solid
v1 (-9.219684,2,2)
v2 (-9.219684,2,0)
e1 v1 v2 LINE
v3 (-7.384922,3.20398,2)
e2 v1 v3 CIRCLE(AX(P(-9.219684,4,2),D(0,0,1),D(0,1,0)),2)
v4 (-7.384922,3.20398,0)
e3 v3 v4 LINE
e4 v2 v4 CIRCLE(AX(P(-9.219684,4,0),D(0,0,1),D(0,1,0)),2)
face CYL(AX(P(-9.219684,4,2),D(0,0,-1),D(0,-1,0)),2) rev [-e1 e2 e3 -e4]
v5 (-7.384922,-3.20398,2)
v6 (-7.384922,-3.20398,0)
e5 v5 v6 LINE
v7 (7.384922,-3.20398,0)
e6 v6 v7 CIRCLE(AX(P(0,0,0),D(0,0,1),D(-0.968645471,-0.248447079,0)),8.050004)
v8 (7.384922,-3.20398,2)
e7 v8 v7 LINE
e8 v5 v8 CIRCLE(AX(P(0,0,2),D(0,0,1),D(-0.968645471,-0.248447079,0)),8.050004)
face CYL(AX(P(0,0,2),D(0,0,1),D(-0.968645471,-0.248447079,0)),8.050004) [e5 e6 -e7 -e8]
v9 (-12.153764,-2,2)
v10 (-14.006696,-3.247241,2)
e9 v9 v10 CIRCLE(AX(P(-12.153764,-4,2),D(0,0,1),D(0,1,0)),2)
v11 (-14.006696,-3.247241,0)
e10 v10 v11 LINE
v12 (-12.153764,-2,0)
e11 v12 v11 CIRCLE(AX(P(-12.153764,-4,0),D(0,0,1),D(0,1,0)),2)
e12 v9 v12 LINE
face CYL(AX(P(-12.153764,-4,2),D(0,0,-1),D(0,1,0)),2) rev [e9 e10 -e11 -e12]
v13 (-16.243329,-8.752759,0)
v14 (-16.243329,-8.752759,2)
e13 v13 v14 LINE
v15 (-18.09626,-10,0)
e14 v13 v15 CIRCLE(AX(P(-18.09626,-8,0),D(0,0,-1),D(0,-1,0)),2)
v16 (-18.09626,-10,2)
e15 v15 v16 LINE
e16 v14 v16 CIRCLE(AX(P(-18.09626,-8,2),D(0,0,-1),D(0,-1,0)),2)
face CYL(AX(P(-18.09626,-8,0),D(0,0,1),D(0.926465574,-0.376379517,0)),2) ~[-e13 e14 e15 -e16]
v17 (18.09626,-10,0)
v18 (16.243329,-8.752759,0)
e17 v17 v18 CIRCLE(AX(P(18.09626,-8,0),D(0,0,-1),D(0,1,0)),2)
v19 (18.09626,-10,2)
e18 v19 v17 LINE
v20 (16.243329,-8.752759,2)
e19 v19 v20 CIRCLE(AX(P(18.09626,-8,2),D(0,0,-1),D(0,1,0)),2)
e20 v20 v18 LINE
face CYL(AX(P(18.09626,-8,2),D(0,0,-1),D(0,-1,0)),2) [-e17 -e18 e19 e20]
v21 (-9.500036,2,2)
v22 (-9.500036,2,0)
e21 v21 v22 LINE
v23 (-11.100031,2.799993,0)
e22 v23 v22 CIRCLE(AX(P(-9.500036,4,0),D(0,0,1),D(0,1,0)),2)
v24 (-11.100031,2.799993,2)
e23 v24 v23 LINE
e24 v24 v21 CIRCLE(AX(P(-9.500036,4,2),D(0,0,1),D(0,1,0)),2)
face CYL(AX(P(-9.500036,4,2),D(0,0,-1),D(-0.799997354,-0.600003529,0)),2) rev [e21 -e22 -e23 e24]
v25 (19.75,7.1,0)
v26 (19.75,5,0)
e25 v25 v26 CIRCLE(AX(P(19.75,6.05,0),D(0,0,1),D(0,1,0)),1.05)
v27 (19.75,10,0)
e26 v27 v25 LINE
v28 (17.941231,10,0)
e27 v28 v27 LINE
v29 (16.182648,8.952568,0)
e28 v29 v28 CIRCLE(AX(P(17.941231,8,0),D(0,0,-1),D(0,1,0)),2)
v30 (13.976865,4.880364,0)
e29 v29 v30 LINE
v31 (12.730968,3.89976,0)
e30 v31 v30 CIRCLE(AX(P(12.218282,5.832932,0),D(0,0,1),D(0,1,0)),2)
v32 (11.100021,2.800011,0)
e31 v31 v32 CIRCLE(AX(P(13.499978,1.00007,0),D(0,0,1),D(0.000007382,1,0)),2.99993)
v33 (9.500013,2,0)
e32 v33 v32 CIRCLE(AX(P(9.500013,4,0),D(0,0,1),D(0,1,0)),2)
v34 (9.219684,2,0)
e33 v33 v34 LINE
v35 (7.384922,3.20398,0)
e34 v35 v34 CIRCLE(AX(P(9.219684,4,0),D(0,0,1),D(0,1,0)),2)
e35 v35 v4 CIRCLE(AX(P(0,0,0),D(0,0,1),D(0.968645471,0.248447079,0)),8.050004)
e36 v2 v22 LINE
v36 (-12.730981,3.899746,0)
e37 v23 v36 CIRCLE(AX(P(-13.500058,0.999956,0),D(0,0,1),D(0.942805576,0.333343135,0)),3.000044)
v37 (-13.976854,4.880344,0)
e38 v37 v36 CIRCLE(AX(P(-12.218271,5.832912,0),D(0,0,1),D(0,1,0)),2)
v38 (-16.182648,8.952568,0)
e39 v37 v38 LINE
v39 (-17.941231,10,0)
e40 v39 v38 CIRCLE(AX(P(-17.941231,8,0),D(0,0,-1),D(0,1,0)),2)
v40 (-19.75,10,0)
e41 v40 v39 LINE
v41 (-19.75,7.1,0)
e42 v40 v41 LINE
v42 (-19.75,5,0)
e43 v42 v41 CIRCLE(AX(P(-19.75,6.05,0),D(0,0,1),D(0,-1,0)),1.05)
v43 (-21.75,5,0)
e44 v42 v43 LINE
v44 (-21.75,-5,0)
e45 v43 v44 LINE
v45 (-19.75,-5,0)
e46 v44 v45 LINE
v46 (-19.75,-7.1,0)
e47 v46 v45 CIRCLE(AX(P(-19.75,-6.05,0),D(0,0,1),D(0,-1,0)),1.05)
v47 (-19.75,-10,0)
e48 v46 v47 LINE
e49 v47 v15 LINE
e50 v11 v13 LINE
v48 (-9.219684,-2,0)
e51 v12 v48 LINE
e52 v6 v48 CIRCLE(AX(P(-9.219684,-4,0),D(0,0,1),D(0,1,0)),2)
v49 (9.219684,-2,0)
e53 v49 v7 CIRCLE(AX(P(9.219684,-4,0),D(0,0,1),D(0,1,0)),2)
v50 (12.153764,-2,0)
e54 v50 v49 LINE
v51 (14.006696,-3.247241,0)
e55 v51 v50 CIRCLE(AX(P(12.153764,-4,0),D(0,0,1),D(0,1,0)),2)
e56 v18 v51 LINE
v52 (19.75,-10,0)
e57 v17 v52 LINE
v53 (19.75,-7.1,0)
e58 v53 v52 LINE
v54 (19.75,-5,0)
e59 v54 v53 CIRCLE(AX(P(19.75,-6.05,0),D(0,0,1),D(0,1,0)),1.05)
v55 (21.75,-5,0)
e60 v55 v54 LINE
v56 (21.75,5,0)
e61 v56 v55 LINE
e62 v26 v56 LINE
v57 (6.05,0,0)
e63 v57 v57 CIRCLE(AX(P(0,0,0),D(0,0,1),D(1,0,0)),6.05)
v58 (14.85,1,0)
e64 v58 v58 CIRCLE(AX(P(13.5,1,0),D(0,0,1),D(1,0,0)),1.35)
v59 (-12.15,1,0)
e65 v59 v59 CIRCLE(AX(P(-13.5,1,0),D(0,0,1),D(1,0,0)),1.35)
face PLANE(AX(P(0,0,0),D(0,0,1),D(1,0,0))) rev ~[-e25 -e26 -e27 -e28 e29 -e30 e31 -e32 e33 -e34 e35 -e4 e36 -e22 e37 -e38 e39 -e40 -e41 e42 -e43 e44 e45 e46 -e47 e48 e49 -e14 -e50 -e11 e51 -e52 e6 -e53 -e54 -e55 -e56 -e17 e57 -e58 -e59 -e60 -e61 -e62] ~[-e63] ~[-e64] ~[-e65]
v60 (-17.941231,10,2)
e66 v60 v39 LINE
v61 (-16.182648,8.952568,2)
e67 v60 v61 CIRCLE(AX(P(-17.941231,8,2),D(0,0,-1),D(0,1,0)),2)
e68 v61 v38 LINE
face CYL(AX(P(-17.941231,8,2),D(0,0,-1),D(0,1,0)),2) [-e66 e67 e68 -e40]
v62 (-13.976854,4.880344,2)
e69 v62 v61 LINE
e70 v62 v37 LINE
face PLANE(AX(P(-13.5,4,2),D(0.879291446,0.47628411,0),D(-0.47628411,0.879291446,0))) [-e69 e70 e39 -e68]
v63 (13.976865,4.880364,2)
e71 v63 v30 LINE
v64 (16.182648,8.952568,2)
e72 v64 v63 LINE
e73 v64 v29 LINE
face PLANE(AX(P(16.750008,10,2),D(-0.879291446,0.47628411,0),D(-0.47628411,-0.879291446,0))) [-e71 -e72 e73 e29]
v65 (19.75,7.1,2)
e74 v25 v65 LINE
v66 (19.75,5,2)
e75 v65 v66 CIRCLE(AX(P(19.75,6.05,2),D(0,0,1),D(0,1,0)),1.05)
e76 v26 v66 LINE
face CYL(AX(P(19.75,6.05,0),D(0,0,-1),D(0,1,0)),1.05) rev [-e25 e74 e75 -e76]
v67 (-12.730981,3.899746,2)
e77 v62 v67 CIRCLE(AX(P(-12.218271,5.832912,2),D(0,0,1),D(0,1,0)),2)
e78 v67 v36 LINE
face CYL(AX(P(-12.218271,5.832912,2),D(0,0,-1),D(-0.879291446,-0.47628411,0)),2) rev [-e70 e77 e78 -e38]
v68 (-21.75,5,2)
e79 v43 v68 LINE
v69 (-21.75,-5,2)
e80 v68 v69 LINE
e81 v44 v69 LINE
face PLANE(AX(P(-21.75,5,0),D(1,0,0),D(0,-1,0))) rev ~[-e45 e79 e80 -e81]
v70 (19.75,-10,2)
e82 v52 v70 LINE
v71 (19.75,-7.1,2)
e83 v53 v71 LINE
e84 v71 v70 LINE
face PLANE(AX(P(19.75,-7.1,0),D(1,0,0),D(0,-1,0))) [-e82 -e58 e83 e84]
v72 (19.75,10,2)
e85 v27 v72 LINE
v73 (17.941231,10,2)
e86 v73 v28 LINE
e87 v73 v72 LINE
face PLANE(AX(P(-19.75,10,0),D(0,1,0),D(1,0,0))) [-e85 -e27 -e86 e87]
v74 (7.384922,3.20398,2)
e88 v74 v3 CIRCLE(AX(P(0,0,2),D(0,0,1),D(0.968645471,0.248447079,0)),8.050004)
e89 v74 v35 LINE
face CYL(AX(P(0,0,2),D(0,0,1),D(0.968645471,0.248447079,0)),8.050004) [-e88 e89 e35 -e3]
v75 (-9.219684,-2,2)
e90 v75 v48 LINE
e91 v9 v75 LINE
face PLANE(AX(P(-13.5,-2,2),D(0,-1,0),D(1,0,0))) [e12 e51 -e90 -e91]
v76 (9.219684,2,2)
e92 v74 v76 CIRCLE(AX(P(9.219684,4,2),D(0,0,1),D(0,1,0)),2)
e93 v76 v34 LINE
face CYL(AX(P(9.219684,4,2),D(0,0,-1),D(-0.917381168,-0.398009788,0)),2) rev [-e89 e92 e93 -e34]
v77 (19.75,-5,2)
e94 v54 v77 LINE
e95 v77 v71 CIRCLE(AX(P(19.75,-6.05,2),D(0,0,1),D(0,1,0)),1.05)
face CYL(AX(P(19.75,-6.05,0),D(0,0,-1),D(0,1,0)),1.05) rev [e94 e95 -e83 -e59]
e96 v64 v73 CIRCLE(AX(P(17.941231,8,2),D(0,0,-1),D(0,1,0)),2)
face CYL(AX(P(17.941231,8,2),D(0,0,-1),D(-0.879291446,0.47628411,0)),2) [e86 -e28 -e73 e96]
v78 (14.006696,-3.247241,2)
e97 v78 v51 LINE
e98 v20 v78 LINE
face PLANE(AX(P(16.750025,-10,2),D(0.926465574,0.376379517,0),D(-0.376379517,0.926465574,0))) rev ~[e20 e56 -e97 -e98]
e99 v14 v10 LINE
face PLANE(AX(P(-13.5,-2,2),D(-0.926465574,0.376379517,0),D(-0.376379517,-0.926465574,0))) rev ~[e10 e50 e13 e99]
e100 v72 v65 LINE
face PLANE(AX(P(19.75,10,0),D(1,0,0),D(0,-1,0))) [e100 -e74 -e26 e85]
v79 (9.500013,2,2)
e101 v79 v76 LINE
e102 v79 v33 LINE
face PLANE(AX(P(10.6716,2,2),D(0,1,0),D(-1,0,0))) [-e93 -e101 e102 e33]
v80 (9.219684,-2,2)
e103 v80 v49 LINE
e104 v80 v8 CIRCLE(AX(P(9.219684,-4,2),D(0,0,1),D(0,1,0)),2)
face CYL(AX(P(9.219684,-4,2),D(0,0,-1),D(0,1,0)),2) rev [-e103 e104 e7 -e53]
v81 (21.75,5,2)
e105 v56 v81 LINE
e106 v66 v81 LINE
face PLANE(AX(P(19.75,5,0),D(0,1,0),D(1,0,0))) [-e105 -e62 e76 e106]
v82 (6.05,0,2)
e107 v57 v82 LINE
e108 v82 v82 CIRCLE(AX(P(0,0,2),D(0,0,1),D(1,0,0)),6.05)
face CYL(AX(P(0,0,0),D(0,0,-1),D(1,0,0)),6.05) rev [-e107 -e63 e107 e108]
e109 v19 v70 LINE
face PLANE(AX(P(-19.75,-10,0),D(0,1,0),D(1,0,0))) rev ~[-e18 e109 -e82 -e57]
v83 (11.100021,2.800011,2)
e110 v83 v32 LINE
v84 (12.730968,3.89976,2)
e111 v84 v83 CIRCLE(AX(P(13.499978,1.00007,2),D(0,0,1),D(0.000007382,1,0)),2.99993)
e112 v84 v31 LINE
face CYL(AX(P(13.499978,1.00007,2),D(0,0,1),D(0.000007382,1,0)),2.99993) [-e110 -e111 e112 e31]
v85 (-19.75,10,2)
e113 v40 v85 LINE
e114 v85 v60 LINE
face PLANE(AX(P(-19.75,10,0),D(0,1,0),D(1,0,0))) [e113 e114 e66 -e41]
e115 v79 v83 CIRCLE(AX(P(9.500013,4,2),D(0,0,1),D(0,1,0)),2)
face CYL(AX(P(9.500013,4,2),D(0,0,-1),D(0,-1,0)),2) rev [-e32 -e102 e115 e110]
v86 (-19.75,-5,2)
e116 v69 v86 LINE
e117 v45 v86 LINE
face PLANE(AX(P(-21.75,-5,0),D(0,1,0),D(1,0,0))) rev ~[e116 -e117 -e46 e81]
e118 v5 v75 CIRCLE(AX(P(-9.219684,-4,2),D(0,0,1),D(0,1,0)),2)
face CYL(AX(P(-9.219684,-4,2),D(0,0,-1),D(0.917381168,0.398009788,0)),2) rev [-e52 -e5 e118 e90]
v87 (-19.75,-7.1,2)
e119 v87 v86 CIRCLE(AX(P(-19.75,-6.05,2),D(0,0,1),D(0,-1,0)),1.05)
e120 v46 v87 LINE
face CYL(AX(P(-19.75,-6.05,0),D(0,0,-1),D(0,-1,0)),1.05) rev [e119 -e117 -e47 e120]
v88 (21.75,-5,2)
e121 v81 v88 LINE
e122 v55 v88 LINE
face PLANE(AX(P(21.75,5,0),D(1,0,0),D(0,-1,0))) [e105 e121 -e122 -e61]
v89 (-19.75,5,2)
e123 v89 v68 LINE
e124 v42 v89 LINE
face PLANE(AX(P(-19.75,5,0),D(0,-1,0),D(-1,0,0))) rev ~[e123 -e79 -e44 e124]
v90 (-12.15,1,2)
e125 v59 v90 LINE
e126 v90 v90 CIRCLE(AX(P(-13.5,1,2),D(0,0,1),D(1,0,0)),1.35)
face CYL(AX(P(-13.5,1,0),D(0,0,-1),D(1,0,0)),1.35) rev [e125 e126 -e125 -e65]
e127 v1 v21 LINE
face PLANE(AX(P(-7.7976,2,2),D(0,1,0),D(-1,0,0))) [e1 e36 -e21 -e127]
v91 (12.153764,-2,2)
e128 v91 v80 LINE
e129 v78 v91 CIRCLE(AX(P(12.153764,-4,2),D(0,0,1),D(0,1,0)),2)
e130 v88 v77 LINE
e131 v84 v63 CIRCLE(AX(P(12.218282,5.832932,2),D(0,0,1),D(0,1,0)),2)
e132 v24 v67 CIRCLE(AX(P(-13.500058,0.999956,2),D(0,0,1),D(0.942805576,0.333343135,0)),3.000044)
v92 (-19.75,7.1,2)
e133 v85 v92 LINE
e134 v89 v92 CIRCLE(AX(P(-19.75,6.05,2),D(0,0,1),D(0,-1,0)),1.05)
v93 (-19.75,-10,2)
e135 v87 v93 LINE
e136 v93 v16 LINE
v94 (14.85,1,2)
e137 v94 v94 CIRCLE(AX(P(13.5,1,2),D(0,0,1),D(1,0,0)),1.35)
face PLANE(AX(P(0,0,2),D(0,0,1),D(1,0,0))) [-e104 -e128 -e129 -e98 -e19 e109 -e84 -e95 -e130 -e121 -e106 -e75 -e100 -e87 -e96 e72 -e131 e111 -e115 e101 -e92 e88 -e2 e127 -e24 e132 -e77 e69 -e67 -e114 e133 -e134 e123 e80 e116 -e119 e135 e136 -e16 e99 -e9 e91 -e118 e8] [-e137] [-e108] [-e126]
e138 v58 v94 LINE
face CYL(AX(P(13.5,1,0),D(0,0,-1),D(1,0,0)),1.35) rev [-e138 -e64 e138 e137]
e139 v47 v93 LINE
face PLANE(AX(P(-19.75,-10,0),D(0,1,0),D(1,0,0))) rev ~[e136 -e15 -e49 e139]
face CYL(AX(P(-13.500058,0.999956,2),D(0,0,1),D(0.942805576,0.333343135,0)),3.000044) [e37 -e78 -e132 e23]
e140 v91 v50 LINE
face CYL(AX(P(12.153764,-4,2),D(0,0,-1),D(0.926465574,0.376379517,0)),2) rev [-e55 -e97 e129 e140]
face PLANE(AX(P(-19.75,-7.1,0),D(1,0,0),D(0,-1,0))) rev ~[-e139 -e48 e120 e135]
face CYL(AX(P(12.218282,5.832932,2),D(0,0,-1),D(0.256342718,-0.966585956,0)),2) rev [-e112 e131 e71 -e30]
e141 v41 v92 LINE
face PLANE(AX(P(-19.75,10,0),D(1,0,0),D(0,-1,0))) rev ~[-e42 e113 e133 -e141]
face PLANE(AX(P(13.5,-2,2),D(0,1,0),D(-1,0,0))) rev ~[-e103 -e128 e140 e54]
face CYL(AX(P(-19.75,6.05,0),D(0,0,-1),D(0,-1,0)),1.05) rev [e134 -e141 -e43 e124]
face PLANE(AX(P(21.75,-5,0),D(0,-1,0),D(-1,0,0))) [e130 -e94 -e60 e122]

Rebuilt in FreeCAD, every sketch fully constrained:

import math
import FreeCAD as App
import Part
import Sketcher

V = App.Vector
Q = App.Units.Quantity


def edges_at(feature, points):
    """Names of the edges that pass closest to the given points."""
    edges = feature.Shape.Edges
    near = lambda p: min(range(len(edges)), key=lambda i: edges[i].distToShape(Part.Vertex(*p))[0])
    return sorted({f"Edge{near(p) + 1}" for p in points})

doc = App.newDocument("Part")
body = doc.addObject("PartDesign::Body", "Body")

sketch1 = body.newObject("Sketcher::SketchObject", "Sketch")
sketch1.AttachmentSupport = (doc.getObject("XY_Plane"), [""])
sketch1.MapMode = "FlatFace"
sketch1.addGeometry(Part.LineSegment(V(19.8, 10, 0), V(-19.8, 10, 0)), False)
sketch1.addGeometry(Part.LineSegment(V(-19.8, 10, 0), V(-19.8, 7.1, 0)), False)
sketch1.addGeometry(Part.ArcOfCircle(Part.Circle(V(-19.8, 6, 0), V(0, 0, 1), 1), math.radians(-90), math.radians(90)), False)
sketch1.addGeometry(Part.LineSegment(V(-19.8, 5, 0), V(-21.8, 5, 0)), False)
sketch1.addGeometry(Part.LineSegment(V(-21.8, 5, 0), V(-21.8, -5, 0)), False)
sketch1.addGeometry(Part.LineSegment(V(-21.8, -5, 0), V(-19.8, -5, 0)), False)
sketch1.addGeometry(Part.ArcOfCircle(Part.Circle(V(-19.8, -6, 0), V(0, 0, 1), 1), math.radians(-90), math.radians(90)), False)
sketch1.addGeometry(Part.LineSegment(V(-19.8, -7.1, 0), V(-19.8, -10, 0)), False)
sketch1.addGeometry(Part.LineSegment(V(-19.8, -10, 0), V(19.8, -10, 0)), False)
sketch1.addGeometry(Part.LineSegment(V(19.8, -10, 0), V(19.8, -7.1, 0)), False)
sketch1.addGeometry(Part.ArcOfCircle(Part.Circle(V(19.8, -6, 0), V(0, 0, 1), 1), math.radians(90), math.radians(270)), False)
sketch1.addGeometry(Part.LineSegment(V(19.8, -5, 0), V(21.8, -5, 0)), False)
sketch1.addGeometry(Part.LineSegment(V(21.8, -5, 0), V(21.8, 5, 0)), False)
sketch1.addGeometry(Part.LineSegment(V(21.8, 5, 0), V(19.8, 5, 0)), False)
sketch1.addGeometry(Part.ArcOfCircle(Part.Circle(V(19.8, 6, 0), V(0, 0, 1), 1), math.radians(90), math.radians(270)), False)
sketch1.addGeometry(Part.LineSegment(V(19.8, 7.1, 0), V(19.8, 10, 0)), False)
sketch1.addGeometry(Part.Circle(V(-13.5, 1, 0), V(0, 0, 1), 1.4), False)
sketch1.addGeometry(Part.Circle(V(0, 0, 0), V(0, 0, 1), 6), False)
sketch1.addGeometry(Part.Circle(V(13.5, 1, 0), V(0, 0, 1), 1.4), False)
sketch1.addConstraint(Sketcher.Constraint("Coincident", 0, 2, 1, 1))
sketch1.addConstraint(Sketcher.Constraint("Coincident", 1, 2, 2, 2))
sketch1.addConstraint(Sketcher.Constraint("Tangent", 2, 1, 3, 1))
sketch1.addConstraint(Sketcher.Constraint("Coincident", 3, 2, 4, 1))
sketch1.addConstraint(Sketcher.Constraint("Coincident", 4, 2, 5, 1))
sketch1.addConstraint(Sketcher.Constraint("Tangent", 5, 2, 6, 2))
sketch1.addConstraint(Sketcher.Constraint("Coincident", 6, 1, 7, 1))
sketch1.addConstraint(Sketcher.Constraint("Coincident", 7, 2, 8, 1))
sketch1.addConstraint(Sketcher.Constraint("Coincident", 8, 2, 9, 1))
sketch1.addConstraint(Sketcher.Constraint("Coincident", 9, 2, 10, 2))
sketch1.addConstraint(Sketcher.Constraint("Tangent", 10, 1, 11, 1))
sketch1.addConstraint(Sketcher.Constraint("Coincident", 11, 2, 12, 1))
sketch1.addConstraint(Sketcher.Constraint("Coincident", 12, 2, 13, 1))
sketch1.addConstraint(Sketcher.Constraint("Tangent", 13, 2, 14, 2))
sketch1.addConstraint(Sketcher.Constraint("Coincident", 14, 1, 15, 1))
sketch1.addConstraint(Sketcher.Constraint("Coincident", 15, 2, 0, 1))
sketch1.addConstraint(Sketcher.Constraint("Horizontal", 0))
sketch1.addConstraint(Sketcher.Constraint("Vertical", 1))
sketch1.addConstraint(Sketcher.Constraint("Horizontal", 3))
sketch1.addConstraint(Sketcher.Constraint("Vertical", 4))
sketch1.addConstraint(Sketcher.Constraint("Horizontal", 5))
sketch1.addConstraint(Sketcher.Constraint("Vertical", 7))
sketch1.addConstraint(Sketcher.Constraint("Horizontal", 8))
sketch1.addConstraint(Sketcher.Constraint("Vertical", 9))
sketch1.addConstraint(Sketcher.Constraint("Horizontal", 11))
sketch1.addConstraint(Sketcher.Constraint("Vertical", 12))
sketch1.addConstraint(Sketcher.Constraint("Horizontal", 13))
sketch1.addConstraint(Sketcher.Constraint("Vertical", 15))
sketch1.addConstraint(Sketcher.Constraint("Coincident", 17, 3, -1, 1))
sketch1.addConstraint(Sketcher.Constraint("Equal", 2, 6))
sketch1.addConstraint(Sketcher.Constraint("Equal", 6, 10))
sketch1.addConstraint(Sketcher.Constraint("Equal", 10, 14))
sketch1.addConstraint(Sketcher.Constraint("Equal", 16, 18))
sketch1.addConstraint(Sketcher.Constraint("Symmetric", 2, 3, 10, 3, -1, 1))
sketch1.addConstraint(Sketcher.Constraint("Symmetric", 6, 3, 14, 3, -1, 1))
sketch1.addConstraint(Sketcher.Constraint("Symmetric", 0, 2, 8, 2, -1, 1))
sketch1.addConstraint(Sketcher.Constraint("Symmetric", 6, 3, 10, 3, -2))
sketch1.addConstraint(Sketcher.Constraint("Symmetric", 16, 3, 18, 3, -2))
sketch1.addConstraint(Sketcher.Constraint("Vertical", 6, 3, 0, 2))
sketch1.addConstraint(Sketcher.Constraint("Vertical", 5, 2, 6, 1))
sketch1.addConstraint(Sketcher.Constraint("Vertical", 13, 2, 14, 1))
sketch1.addConstraint(Sketcher.Constraint("Equal", 5, 11))
sketch1.addConstraint(Sketcher.Constraint("Diameter", 16, 2.7))
sketch1.addConstraint(Sketcher.Constraint("Diameter", 17, 12.1))
sketch1.addConstraint(Sketcher.Constraint("DistanceX", 3, 2, 3, 1, 2.0))
sketch1.addConstraint(Sketcher.Constraint("DistanceY", 4, 2, 4, 1, 10.0))
sketch1.addConstraint(Sketcher.Constraint("Radius", 2, 1.05))
sketch1.addConstraint(Sketcher.Constraint("DistanceX", 0, 2, 0, 1, 39.5))
sketch1.addConstraint(Sketcher.Constraint("DistanceY", -1, 1, 16, 3, 1.0))
sketch1.addConstraint(Sketcher.Constraint("DistanceY", -1, 1, 0, 2, 10.0))
sketch1.addConstraint(Sketcher.Constraint("DistanceX", 16, 3, 18, 3, 27.0))
pad1 = body.newObject("PartDesign::Pad", "Pad")
pad1.Profile = sketch1
pad1.Length = 2

sketch2 = body.newObject("Sketcher::SketchObject", "Sketch001")
sketch2.AttachmentSupport = (doc.getObject("XY_Plane"), [""])
sketch2.MapMode = "FlatFace"
sketch2.AttachmentOffset = App.Placement(V(0, 0, 2), App.Rotation())
sketch2.addGeometry(Part.LineSegment(V(-13.5, -2, 0), V(-18.8, -15.1, 0)), False)
sketch2.addGeometry(Part.LineSegment(V(-18.8, -15.1, 0), V(18.8, -15.1, 0)), False)
sketch2.addGeometry(Part.LineSegment(V(18.8, -15.1, 0), V(13.5, -2, 0)), False)
sketch2.addGeometry(Part.LineSegment(V(13.5, -2, 0), V(7.8, -2, 0)), False)
sketch2.addGeometry(Part.ArcOfCircle(Part.Circle(V(0, 0, 0), V(0, 0, 1), 8.1), math.radians(-166), math.radians(-14)), False)
sketch2.addGeometry(Part.LineSegment(V(-7.8, -2, 0), V(-13.5, -2, 0)), False)
sketch2.addGeometry(Part.LineSegment(V(13.5, 4, 0), V(16.8, 10, 0)), False)
sketch2.addGeometry(Part.LineSegment(V(16.8, 10, 0), V(-16.8, 10, 0)), False)
sketch2.addGeometry(Part.LineSegment(V(-16.8, 10, 0), V(-13.5, 4, 0)), False)
sketch2.addGeometry(Part.ArcOfCircle(Part.Circle(V(-13.5, 1, 0), V(0, 0, 1), 3), math.radians(19), math.radians(90)), False)
sketch2.addGeometry(Part.LineSegment(V(-10.7, 2, 0), V(-7.8, 2, 0)), False)
sketch2.addGeometry(Part.ArcOfCircle(Part.Circle(V(0, 0, 0), V(0, 0, 1), 8.1), math.radians(14), math.radians(166)), False)
sketch2.addGeometry(Part.LineSegment(V(7.8, 2, 0), V(10.7, 2, 0)), False)
sketch2.addGeometry(Part.ArcOfCircle(Part.Circle(V(13.5, 1, 0), V(0, 0, 1), 3), math.radians(90), math.radians(161)), False)
sketch2.addConstraint(Sketcher.Constraint("Coincident", 0, 2, 1, 1))
sketch2.addConstraint(Sketcher.Constraint("Coincident", 1, 2, 2, 1))
sketch2.addConstraint(Sketcher.Constraint("Coincident", 2, 2, 3, 1))
sketch2.addConstraint(Sketcher.Constraint("Coincident", 3, 2, 4, 2))
sketch2.addConstraint(Sketcher.Constraint("Coincident", 4, 1, 5, 1))
sketch2.addConstraint(Sketcher.Constraint("Coincident", 5, 2, 0, 1))
sketch2.addConstraint(Sketcher.Constraint("Coincident", 6, 2, 7, 1))
sketch2.addConstraint(Sketcher.Constraint("Coincident", 7, 2, 8, 1))
sketch2.addConstraint(Sketcher.Constraint("Coincident", 8, 2, 9, 2))
sketch2.addConstraint(Sketcher.Constraint("Coincident", 9, 1, 10, 1))
sketch2.addConstraint(Sketcher.Constraint("Coincident", 10, 2, 11, 2))
sketch2.addConstraint(Sketcher.Constraint("Coincident", 11, 1, 12, 1))
sketch2.addConstraint(Sketcher.Constraint("Coincident", 12, 2, 13, 2))
sketch2.addConstraint(Sketcher.Constraint("Coincident", 13, 1, 6, 1))
sketch2.addConstraint(Sketcher.Constraint("Horizontal", 1))
sketch2.addConstraint(Sketcher.Constraint("Horizontal", 3))
sketch2.addConstraint(Sketcher.Constraint("Horizontal", 5))
sketch2.addConstraint(Sketcher.Constraint("Horizontal", 7))
sketch2.addConstraint(Sketcher.Constraint("Horizontal", 10))
sketch2.addConstraint(Sketcher.Constraint("Horizontal", 12))
sketch2.addConstraint(Sketcher.Constraint("Coincident", 4, 3, -1, 1))
sketch2.addConstraint(Sketcher.Constraint("Coincident", 11, 3, -1, 1))
sketch2.addConstraint(Sketcher.Constraint("Equal", 4, 11))
sketch2.addConstraint(Sketcher.Constraint("Equal", 9, 13))
sketch2.addConstraint(Sketcher.Constraint("Symmetric", 9, 3, 13, 3, -2))
sketch2.addConstraint(Sketcher.Constraint("Symmetric", 2, 2, 5, 2, -2))
sketch2.addConstraint(Sketcher.Constraint("Horizontal", 10, 2, 11, 1))
sketch2.addConstraint(Sketcher.Constraint("Vertical", 13, 3, 2, 2))
sketch2.addConstraint(Sketcher.Constraint("Vertical", 5, 2, 8, 2))
sketch2.addConstraint(Sketcher.Constraint("Vertical", 4, 1, 10, 2))
sketch2.addConstraint(Sketcher.Constraint("Vertical", 2, 2, 13, 1))
sketch2.addConstraint(Sketcher.Constraint("Equal", 0, 2))
sketch2.addConstraint(Sketcher.Constraint("Equal", 6, 8))
sketch2.addConstraint(Sketcher.Constraint("Radius", 9, 3.0))
sketch2.addConstraint(Sketcher.Constraint("DistanceY", 2, 2, -1, 1, 2.0))
sketch2.addConstraint(Sketcher.Constraint("DistanceY", 2, 2, 13, 3, 3.0))
sketch2.addConstraint(Sketcher.Constraint("Radius", 4, 8.05))
sketch2.addConstraint(Sketcher.Constraint("DistanceX", 7, 2, 7, 1, 33.5))
sketch2.addConstraint(Sketcher.Constraint("DistanceY", -1, 1, 6, 2, 10.0))
sketch2.addConstraint(Sketcher.Constraint("DistanceX", 9, 3, 13, 3, 27.0))
sketch2.addConstraint(Sketcher.Constraint("Angle", 0, Q("-112.1096 deg")))
sketch2.addConstraint(Sketcher.Constraint("DistanceX", 1, 1, 1, 2, 37.6262))
pocket1 = body.newObject("PartDesign::Pocket", "Pocket")
pocket1.Profile = sketch2
pocket1.Length = 10
doc.recompute()

fillet = body.newObject("PartDesign::Fillet", "Fillet")
fillet.Base = (pocket1, edges_at(pocket1, [
    (7.798, 2, 1),
    (7.798, -2, 1),
    (-7.798, -2, 1),
    (-7.798, 2, 1),
    (13.5, -2, 1),
    (-13.5, -2, 1),
    (-13.5, 4, 1),
    (-10.672, 2, 1),
    (10.672, 2, 1),
    (13.5, 4, 1),
    (-16.75, 10, 1),
    (-16.75, -10, 1),
    (16.75, -10, 1),
    (16.75, 10, 1),
]))
fillet.Radius = 2

doc.recompute()
